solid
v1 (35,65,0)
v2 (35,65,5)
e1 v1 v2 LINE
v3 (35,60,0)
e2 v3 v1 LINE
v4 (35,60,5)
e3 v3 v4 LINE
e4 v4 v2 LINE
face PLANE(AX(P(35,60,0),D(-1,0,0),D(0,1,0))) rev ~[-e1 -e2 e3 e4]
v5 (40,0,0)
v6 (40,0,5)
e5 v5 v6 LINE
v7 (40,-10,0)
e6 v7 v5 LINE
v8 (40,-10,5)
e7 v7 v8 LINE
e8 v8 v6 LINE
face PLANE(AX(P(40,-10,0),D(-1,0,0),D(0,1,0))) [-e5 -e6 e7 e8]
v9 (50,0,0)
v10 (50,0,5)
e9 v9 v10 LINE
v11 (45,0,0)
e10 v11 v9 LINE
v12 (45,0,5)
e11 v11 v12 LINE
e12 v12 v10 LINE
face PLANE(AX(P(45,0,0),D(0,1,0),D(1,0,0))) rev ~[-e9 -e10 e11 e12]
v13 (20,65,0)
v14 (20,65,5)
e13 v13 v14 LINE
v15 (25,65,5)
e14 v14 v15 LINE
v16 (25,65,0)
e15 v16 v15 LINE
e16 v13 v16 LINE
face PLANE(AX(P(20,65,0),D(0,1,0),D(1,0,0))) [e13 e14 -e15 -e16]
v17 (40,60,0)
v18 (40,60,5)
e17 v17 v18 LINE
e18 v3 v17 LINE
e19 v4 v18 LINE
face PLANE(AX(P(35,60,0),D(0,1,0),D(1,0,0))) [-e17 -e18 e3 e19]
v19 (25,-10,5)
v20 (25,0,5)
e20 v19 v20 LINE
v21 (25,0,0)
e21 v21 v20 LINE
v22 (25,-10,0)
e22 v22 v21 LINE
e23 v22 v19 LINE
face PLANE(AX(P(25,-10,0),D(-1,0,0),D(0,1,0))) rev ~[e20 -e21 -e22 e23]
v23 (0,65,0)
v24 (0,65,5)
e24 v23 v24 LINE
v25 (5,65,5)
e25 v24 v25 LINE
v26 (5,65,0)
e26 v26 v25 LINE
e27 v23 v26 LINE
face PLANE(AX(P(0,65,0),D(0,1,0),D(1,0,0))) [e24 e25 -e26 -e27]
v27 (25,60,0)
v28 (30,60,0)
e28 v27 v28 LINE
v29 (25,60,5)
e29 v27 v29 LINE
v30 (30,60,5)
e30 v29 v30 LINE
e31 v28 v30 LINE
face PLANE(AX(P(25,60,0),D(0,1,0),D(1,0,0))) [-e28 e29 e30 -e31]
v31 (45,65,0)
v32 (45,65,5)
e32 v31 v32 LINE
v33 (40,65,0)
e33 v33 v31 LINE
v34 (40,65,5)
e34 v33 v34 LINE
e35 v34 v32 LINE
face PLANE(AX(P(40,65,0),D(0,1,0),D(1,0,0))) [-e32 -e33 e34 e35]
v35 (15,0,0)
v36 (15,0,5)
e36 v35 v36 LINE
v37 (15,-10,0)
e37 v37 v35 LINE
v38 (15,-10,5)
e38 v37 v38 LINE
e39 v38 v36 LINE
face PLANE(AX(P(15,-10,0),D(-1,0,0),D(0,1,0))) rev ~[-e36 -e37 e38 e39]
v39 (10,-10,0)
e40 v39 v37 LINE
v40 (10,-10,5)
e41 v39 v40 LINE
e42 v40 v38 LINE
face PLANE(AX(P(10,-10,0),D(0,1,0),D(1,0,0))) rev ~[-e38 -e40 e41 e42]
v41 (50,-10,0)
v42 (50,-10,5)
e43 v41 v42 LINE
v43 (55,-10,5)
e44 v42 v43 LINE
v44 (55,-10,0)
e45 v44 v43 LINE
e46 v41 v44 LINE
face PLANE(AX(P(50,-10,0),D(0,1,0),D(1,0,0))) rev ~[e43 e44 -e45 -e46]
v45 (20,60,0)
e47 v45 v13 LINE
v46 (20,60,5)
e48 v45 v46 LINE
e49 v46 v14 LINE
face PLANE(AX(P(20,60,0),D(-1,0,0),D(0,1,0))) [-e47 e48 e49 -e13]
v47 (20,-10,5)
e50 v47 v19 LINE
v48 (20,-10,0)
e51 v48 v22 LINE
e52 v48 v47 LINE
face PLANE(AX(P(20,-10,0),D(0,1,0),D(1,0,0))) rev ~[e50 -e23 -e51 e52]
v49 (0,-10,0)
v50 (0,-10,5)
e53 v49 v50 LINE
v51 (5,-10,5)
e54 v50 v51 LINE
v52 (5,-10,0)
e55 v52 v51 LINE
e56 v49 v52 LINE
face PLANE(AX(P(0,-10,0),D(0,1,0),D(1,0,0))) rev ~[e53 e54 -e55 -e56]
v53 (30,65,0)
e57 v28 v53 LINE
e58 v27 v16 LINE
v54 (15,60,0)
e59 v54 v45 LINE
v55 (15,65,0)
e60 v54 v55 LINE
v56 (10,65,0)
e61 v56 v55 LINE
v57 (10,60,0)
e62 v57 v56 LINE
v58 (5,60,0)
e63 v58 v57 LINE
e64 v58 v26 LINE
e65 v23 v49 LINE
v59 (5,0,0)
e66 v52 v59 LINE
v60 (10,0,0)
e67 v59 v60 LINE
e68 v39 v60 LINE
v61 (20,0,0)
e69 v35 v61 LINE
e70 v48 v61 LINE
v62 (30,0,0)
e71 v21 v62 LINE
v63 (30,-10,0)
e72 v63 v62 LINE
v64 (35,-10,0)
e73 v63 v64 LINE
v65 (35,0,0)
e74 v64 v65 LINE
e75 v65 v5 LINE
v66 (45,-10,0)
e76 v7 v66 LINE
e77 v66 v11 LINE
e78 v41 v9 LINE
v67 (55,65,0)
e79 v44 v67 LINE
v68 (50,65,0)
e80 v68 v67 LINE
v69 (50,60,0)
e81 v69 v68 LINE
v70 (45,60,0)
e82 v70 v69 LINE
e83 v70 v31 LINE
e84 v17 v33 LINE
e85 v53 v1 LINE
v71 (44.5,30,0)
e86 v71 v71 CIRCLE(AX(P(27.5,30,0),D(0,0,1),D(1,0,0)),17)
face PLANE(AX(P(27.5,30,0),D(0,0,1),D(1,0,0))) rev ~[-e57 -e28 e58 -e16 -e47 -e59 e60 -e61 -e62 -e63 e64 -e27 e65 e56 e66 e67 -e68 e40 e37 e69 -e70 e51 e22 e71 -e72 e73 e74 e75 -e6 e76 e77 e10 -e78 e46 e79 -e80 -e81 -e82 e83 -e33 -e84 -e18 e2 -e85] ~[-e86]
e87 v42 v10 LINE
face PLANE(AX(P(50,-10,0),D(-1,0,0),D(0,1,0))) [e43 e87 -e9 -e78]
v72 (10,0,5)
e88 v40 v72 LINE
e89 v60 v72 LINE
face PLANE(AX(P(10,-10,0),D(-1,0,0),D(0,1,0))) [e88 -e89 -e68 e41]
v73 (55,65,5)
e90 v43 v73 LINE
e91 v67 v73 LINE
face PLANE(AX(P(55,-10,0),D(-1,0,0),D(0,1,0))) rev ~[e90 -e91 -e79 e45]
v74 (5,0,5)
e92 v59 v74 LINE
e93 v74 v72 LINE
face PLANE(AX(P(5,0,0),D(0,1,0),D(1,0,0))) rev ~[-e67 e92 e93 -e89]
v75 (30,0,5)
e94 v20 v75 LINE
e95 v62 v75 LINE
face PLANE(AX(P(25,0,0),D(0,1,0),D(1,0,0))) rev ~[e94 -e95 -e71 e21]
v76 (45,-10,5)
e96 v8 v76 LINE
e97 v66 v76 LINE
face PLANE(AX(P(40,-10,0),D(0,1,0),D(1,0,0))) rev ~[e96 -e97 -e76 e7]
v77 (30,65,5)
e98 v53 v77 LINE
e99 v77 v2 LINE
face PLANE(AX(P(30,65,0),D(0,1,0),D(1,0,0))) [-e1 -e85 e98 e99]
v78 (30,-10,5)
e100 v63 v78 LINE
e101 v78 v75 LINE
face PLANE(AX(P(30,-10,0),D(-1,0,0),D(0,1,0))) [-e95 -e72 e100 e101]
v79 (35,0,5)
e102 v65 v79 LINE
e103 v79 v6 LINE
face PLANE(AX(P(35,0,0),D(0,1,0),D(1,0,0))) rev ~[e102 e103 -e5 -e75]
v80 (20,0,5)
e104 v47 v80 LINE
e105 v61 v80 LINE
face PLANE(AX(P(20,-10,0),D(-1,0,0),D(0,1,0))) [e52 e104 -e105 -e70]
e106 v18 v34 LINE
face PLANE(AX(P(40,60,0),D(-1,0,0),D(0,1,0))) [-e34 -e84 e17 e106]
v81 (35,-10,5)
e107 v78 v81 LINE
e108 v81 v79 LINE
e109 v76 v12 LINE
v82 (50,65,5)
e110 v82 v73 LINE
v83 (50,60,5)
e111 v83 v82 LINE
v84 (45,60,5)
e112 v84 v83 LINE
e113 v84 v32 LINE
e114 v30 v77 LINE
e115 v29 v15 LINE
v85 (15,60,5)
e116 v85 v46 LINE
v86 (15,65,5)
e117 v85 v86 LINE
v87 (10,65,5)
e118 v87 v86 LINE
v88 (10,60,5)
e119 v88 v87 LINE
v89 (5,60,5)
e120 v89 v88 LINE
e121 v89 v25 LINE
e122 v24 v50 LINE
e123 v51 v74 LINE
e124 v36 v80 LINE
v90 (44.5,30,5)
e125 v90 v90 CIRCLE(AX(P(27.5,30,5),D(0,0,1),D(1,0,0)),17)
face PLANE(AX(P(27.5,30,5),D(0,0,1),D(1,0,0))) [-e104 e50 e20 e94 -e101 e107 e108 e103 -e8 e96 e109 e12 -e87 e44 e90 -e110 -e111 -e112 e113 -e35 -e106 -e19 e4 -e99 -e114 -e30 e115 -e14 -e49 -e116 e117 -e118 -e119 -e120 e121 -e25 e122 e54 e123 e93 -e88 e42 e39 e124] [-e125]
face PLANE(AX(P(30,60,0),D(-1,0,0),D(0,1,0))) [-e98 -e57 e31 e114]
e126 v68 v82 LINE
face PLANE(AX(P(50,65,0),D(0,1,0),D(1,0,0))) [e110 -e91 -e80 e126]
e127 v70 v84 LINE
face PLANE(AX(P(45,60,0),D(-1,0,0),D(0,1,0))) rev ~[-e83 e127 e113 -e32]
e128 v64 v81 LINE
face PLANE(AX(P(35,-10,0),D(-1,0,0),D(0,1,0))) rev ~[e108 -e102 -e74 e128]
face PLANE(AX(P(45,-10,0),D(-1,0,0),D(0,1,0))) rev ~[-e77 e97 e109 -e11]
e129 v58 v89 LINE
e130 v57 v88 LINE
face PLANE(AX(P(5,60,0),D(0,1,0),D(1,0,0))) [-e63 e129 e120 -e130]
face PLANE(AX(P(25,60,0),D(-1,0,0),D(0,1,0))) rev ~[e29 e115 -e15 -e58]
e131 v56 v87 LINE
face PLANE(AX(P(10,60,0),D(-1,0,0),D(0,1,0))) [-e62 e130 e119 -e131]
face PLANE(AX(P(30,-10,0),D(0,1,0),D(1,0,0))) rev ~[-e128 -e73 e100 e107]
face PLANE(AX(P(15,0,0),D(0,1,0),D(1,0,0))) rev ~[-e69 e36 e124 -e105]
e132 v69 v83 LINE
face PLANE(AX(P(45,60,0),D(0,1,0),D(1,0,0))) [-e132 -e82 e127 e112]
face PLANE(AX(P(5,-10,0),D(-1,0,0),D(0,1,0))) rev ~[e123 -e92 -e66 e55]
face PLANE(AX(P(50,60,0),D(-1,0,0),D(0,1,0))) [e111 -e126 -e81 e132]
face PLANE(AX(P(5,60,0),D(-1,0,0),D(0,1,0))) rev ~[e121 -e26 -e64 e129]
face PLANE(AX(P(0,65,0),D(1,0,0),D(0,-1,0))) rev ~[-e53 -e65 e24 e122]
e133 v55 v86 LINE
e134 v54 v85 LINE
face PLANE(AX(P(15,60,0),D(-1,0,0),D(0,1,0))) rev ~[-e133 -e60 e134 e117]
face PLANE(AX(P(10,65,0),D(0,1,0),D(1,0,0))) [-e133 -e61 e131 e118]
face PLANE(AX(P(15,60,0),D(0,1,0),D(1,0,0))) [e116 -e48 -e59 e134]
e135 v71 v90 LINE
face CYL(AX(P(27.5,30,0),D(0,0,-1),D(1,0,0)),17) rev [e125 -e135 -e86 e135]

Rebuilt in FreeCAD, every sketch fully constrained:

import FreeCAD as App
import Part
import Sketcher
from FreeCAD import Vector

doc = App.newDocument("Part")
body = doc.addObject("PartDesign::Body", "Body")

sketch1 = doc.addObject("Sketcher::SketchObject", "Sketch")
body.addObject(sketch1)
sketch1.AttachmentSupport = (doc.XY_Plane, [""])
sketch1.MapMode = "FlatFace"
sketch1.addGeometry(Part.LineSegment(Vector(5, 0, 0), Vector(10, 0, 0)), False)
sketch1.addGeometry(Part.LineSegment(Vector(10, 0, 0), Vector(10, -10, 0)), False)
sketch1.addGeometry(Part.LineSegment(Vector(10, -10, 0), Vector(15, -10, 0)), False)
sketch1.addGeometry(Part.LineSegment(Vector(15, -10, 0), Vector(15, 0, 0)), False)
sketch1.addGeometry(Part.LineSegment(Vector(15, 0, 0), Vector(20, 0, 0)), False)
sketch1.addGeometry(Part.LineSegment(Vector(20, 0, 0), Vector(20, -10, 0)), False)
sketch1.addGeometry(Part.LineSegment(Vector(20, -10, 0), Vector(25, -10, 0)), False)
sketch1.addGeometry(Part.LineSegment(Vector(25, -10, 0), Vector(25, 0, 0)), False)
sketch1.addGeometry(Part.LineSegment(Vector(25, 0, 0), Vector(30, 0, 0)), False)
sketch1.addGeometry(Part.LineSegment(Vector(30, 0, 0), Vector(30, -10, 0)), False)
sketch1.addGeometry(Part.LineSegment(Vector(30, -10, 0), Vector(35, -10, 0)), False)
sketch1.addGeometry(Part.LineSegment(Vector(35, -10, 0), Vector(35, 0, 0)), False)
sketch1.addGeometry(Part.LineSegment(Vector(35, 0, 0), Vector(40, 0, 0)), False)
sketch1.addGeometry(Part.LineSegment(Vector(40, 0, 0), Vector(40, -10, 0)), False)
sketch1.addGeometry(Part.LineSegment(Vector(40, -10, 0), Vector(45, -10, 0)), False)
sketch1.addGeometry(Part.LineSegment(Vector(45, -10, 0), Vector(45, 0, 0)), False)
sketch1.addGeometry(Part.LineSegment(Vector(45, 0, 0), Vector(50, 0, 0)), False)
sketch1.addGeometry(Part.LineSegment(Vector(50, 0, 0), Vector(50, -10, 0)), False)
sketch1.addGeometry(Part.LineSegment(Vector(50, -10, 0), Vector(55, -10, 0)), False)
sketch1.addGeometry(Part.LineSegment(Vector(55, -10, 0), Vector(55, 65, 0)), False)
sketch1.addGeometry(Part.LineSegment(Vector(55, 65, 0), Vector(50, 65, 0)), False)
sketch1.addGeometry(Part.LineSegment(Vector(50, 65, 0), Vector(50, 60, 0)), False)
sketch1.addGeometry(Part.LineSegment(Vector(50, 60, 0), Vector(45, 60, 0)), False)
sketch1.addGeometry(Part.LineSegment(Vector(45, 60, 0), Vector(45, 65, 0)), False)
sketch1.addGeometry(Part.LineSegment(Vector(45, 65, 0), Vector(40, 65, 0)), False)
sketch1.addGeometry(Part.LineSegment(Vector(40, 65, 0), Vector(40, 60, 0)), False)
sketch1.addGeometry(Part.LineSegment(Vector(40, 60, 0), Vector(35, 60, 0)), False)
sketch1.addGeometry(Part.LineSegment(Vector(35, 60, 0), Vector(35, 65, 0)), False)
sketch1.addGeometry(Part.LineSegment(Vector(35, 65, 0), Vector(30, 65, 0)), False)
sketch1.addGeometry(Part.LineSegment(Vector(30, 65, 0), Vector(30, 60, 0)), False)
sketch1.addGeometry(Part.LineSegment(Vector(30, 60, 0), Vector(25, 60, 0)), False)
sketch1.addGeometry(Part.LineSegment(Vector(25, 60, 0), Vector(25, 65, 0)), False)
sketch1.addGeometry(Part.LineSegment(Vector(25, 65, 0), Vector(20, 65, 0)), False)
sketch1.addGeometry(Part.LineSegment(Vector(20, 65, 0), Vector(20, 60, 0)), False)
sketch1.addGeometry(Part.LineSegment(Vector(20, 60, 0), Vector(15, 60, 0)), False)
sketch1.addGeometry(Part.LineSegment(Vector(15, 60, 0), Vector(15, 65, 0)), False)
sketch1.addGeometry(Part.LineSegment(Vector(15, 65, 0), Vector(10, 65, 0)), False)
sketch1.addGeometry(Part.LineSegment(Vector(10, 65, 0), Vector(10, 60, 0)), False)
sketch1.addGeometry(Part.LineSegment(Vector(10, 60, 0), Vector(5, 60, 0)), False)
sketch1.addGeometry(Part.LineSegment(Vector(5, 60, 0), Vector(5, 65, 0)), False)
sketch1.addGeometry(Part.LineSegment(Vector(5, 65, 0), Vector(0, 65, 0)), False)
sketch1.addGeometry(Part.LineSegment(Vector(0, 65, 0), Vector(0, -10, 0)), False)
sketch1.addGeometry(Part.LineSegment(Vector(0, -10, 0), Vector(5, -10, 0)), False)
sketch1.addGeometry(Part.LineSegment(Vector(5, -10, 0), Vector(5, 0, 0)), False)
sketch1.addGeometry(Part.Circle(Vector(27.5, 30, 0), Vector(0, 0, 1), 17), False)
sketch1.addConstraint(Sketcher.Constraint("Coincident", 0, 2, 1, 1))
sketch1.addConstraint(Sketcher.Constraint("Coincident", 1, 2, 2, 1))
sketch1.addConstraint(Sketcher.Constraint("Coincident", 2, 2, 3, 1))
sketch1.addConstraint(Sketcher.Constraint("Coincident", 3, 2, 4, 1))
sketch1.addConstraint(Sketcher.Constraint("Coincident", 4, 2, 5, 1))
sketch1.addConstraint(Sketcher.Constraint("Coincident", 5, 2, 6, 1))
sketch1.addConstraint(Sketcher.Constraint("Coincident", 6, 2, 7, 1))
sketch1.addConstraint(Sketcher.Constraint("Coincident", 7, 2, 8, 1))
sketch1.addConstraint(Sketcher.Constraint("Coincident", 8, 2, 9, 1))
sketch1.addConstraint(Sketcher.Constraint("Coincident", 9, 2, 10, 1))
sketch1.addConstraint(Sketcher.Constraint("Coincident", 10, 2, 11, 1))
sketch1.addConstraint(Sketcher.Constraint("Coincident", 11, 2, 12, 1))
sketch1.addConstraint(Sketcher.Constraint("Coincident", 12, 2, 13, 1))
sketch1.addConstraint(Sketcher.Constraint("Coincident", 13, 2, 14, 1))
sketch1.addConstraint(Sketcher.Constraint("Coincident", 14, 2, 15, 1))
sketch1.addConstraint(Sketcher.Constraint("Coincident", 15, 2, 16, 1))
sketch1.addConstraint(Sketcher.Constraint("Coincident", 16, 2, 17, 1))
sketch1.addConstraint(Sketcher.Constraint("Coincident", 17, 2, 18, 1))
sketch1.addConstraint(Sketcher.Constraint("Coincident", 18, 2, 19, 1))
sketch1.addConstraint(Sketcher.Constraint("Coincident", 19, 2, 20, 1))
sketch1.addConstraint(Sketcher.Constraint("Coincident", 20, 2, 21, 1))
sketch1.addConstraint(Sketcher.Constraint("Coincident", 21, 2, 22, 1))
sketch1.addConstraint(Sketcher.Constraint("Coincident", 22, 2, 23, 1))
sketch1.addConstraint(Sketcher.Constraint("Coincident", 23, 2, 24, 1))
sketch1.addConstraint(Sketcher.Constraint("Coincident", 24, 2, 25, 1))
sketch1.addConstraint(Sketcher.Constraint("Coincident", 25, 2, 26, 1))
sketch1.addConstraint(Sketcher.Constraint("Coincident", 26, 2, 27, 1))
sketch1.addConstraint(Sketcher.Constraint("Coincident", 27, 2, 28, 1))
sketch1.addConstraint(Sketcher.Constraint("Coincident", 28, 2, 29, 1))
sketch1.addConstraint(Sketcher.Constraint("Coincident", 29, 2, 30, 1))
sketch1.addConstraint(Sketcher.Constraint("Coincident", 30, 2, 31, 1))
sketch1.addConstraint(Sketcher.Constraint("Coincident", 31, 2, 32, 1))
sketch1.addConstraint(Sketcher.Constraint("Coincident", 32, 2, 33, 1))
sketch1.addConstraint(Sketcher.Constraint("Coincident", 33, 2, 34, 1))
sketch1.addConstraint(Sketcher.Constraint("Coincident", 34, 2, 35, 1))
sketch1.addConstraint(Sketcher.Constraint("Coincident", 35, 2, 36, 1))
sketch1.addConstraint(Sketcher.Constraint("Coincident", 36, 2, 37, 1))
sketch1.addConstraint(Sketcher.Constraint("Coincident", 37, 2, 38, 1))
sketch1.addConstraint(Sketcher.Constraint("Coincident", 38, 2, 39, 1))
sketch1.addConstraint(Sketcher.Constraint("Coincident", 39, 2, 40, 1))
sketch1.addConstraint(Sketcher.Constraint("Coincident", 40, 2, 41, 1))
sketch1.addConstraint(Sketcher.Constraint("Coincident", 41, 2, 42, 1))
sketch1.addConstraint(Sketcher.Constraint("Coincident", 42, 2, 43, 1))
sketch1.addConstraint(Sketcher.Constraint("Coincident", 43, 2, 0, 1))
sketch1.addConstraint(Sketcher.Constraint("Horizontal", 0))
sketch1.addConstraint(Sketcher.Constraint("Vertical", 1))
sketch1.addConstraint(Sketcher.Constraint("Horizontal", 2))
sketch1.addConstraint(Sketcher.Constraint("Vertical", 3))
sketch1.addConstraint(Sketcher.Constraint("Horizontal", 4))
sketch1.addConstraint(Sketcher.Constraint("Vertical", 5))
sketch1.addConstraint(Sketcher.Constraint("Horizontal", 6))
sketch1.addConstraint(Sketcher.Constraint("Vertical", 7))
sketch1.addConstraint(Sketcher.Constraint("Horizontal", 8))
sketch1.addConstraint(Sketcher.Constraint("Vertical", 9))
sketch1.addConstraint(Sketcher.Constraint("Horizontal", 10))
sketch1.addConstraint(Sketcher.Constraint("Vertical", 11))
sketch1.addConstraint(Sketcher.Constraint("Horizontal", 12))
sketch1.addConstraint(Sketcher.Constraint("Vertical", 13))
sketch1.addConstraint(Sketcher.Constraint("Horizontal", 14))
sketch1.addConstraint(Sketcher.Constraint("Vertical", 15))
sketch1.addConstraint(Sketcher.Constraint("Horizontal", 16))
sketch1.addConstraint(Sketcher.Constraint("Vertical", 17))
sketch1.addConstraint(Sketcher.Constraint("Horizontal", 18))
sketch1.addConstraint(Sketcher.Constraint("Vertical", 19))
sketch1.addConstraint(Sketcher.Constraint("Horizontal", 20))
sketch1.addConstraint(Sketcher.Constraint("Vertical", 21))
sketch1.addConstraint(Sketcher.Constraint("Horizontal", 22))
sketch1.addConstraint(Sketcher.Constraint("Vertical", 23))
sketch1.addConstraint(Sketcher.Constraint("Horizontal", 24))
sketch1.addConstraint(Sketcher.Constraint("Vertical", 25))
sketch1.addConstraint(Sketcher.Constraint("Horizontal", 26))
sketch1.addConstraint(Sketcher.Constraint("Vertical", 27))
sketch1.addConstraint(Sketcher.Constraint("Horizontal", 28))
sketch1.addConstraint(Sketcher.Constraint("Vertical", 29))
sketch1.addConstraint(Sketcher.Constraint("Horizontal", 30))
sketch1.addConstraint(Sketcher.Constraint("Vertical", 31))
sketch1.addConstraint(Sketcher.Constraint("Horizontal", 32))
sketch1.addConstraint(Sketcher.Constraint("Vertical", 33))
sketch1.addConstraint(Sketcher.Constraint("Horizontal", 34))
sketch1.addConstraint(Sketcher.Constraint("Vertical", 35))
sketch1.addConstraint(Sketcher.Constraint("Horizontal", 36))
sketch1.addConstraint(Sketcher.Constraint("Vertical", 37))
sketch1.addConstraint(Sketcher.Constraint("Horizontal", 38))
sketch1.addConstraint(Sketcher.Constraint("Vertical", 39))
sketch1.addConstraint(Sketcher.Constraint("Horizontal", 40))
sketch1.addConstraint(Sketcher.Constraint("Vertical", 41))
sketch1.addConstraint(Sketcher.Constraint("Horizontal", 42))
sketch1.addConstraint(Sketcher.Constraint("Vertical", 43))
sketch1.addConstraint(Sketcher.Constraint("PointOnObject", 0, 2, -1))
sketch1.addConstraint(Sketcher.Constraint("PointOnObject", 3, 2, -1))
sketch1.addConstraint(Sketcher.Constraint("PointOnObject", 7, 2, -1))
sketch1.addConstraint(Sketcher.Constraint("PointOnObject", 11, 2, -1))
sketch1.addConstraint(Sketcher.Constraint("PointOnObject", 15, 2, -1))
sketch1.addConstraint(Sketcher.Constraint("PointOnObject", 40, 2, -2))
sketch1.addConstraint(Sketcher.Constraint("Horizontal", 2, 2, 5, 2))
sketch1.addConstraint(Sketcher.Constraint("Horizontal", 6, 2, 9, 2))
sketch1.addConstraint(Sketcher.Constraint("Horizontal", 10, 2, 13, 2))
sketch1.addConstraint(Sketcher.Constraint("Horizontal", 14, 2, 17, 2))
sketch1.addConstraint(Sketcher.Constraint("Horizontal", 20, 2, 23, 2))
sketch1.addConstraint(Sketcher.Constraint("Horizontal", 22, 2, 25, 2))
sketch1.addConstraint(Sketcher.Constraint("Horizontal", 24, 2, 27, 2))
sketch1.addConstraint(Sketcher.Constraint("Horizontal", 26, 2, 29, 2))
sketch1.addConstraint(Sketcher.Constraint("Horizontal", 28, 2, 31, 2))
sketch1.addConstraint(Sketcher.Constraint("Horizontal", 30, 2, 33, 2))
sketch1.addConstraint(Sketcher.Constraint("Horizontal", 32, 2, 35, 2))
sketch1.addConstraint(Sketcher.Constraint("Horizontal", 34, 2, 37, 2))
sketch1.addConstraint(Sketcher.Constraint("Horizontal", 36, 2, 39, 2))
sketch1.addConstraint(Sketcher.Constraint("Horizontal", 18, 2, 41, 2))
sketch1.addConstraint(Sketcher.Constraint("Vertical", 17, 2, 20, 2))
sketch1.addConstraint(Sketcher.Constraint("Vertical", 15, 2, 22, 2))
sketch1.addConstraint(Sketcher.Constraint("Vertical", 13, 2, 24, 2))
sketch1.addConstraint(Sketcher.Constraint("Vertical", 11, 2, 26, 2))
sketch1.addConstraint(Sketcher.Constraint("Vertical", 9, 2, 28, 2))
sketch1.addConstraint(Sketcher.Constraint("Vertical", 7, 2, 30, 2))
sketch1.addConstraint(Sketcher.Constraint("Vertical", 5, 2, 32, 2))
sketch1.addConstraint(Sketcher.Constraint("Vertical", 3, 2, 34, 2))
sketch1.addConstraint(Sketcher.Constraint("Vertical", 1, 2, 36, 2))
sketch1.addConstraint(Sketcher.Constraint("Vertical", 39, 2, 42, 2))
sketch1.addConstraint(Sketcher.Constraint("Equal", 0, 2))
sketch1.addConstraint(Sketcher.Constraint("Equal", 2, 4))
sketch1.addConstraint(Sketcher.Constraint("Equal", 4, 6))
sketch1.addConstraint(Sketcher.Constraint("Equal", 6, 8))
sketch1.addConstraint(Sketcher.Constraint("Equal", 8, 10))
sketch1.addConstraint(Sketcher.Constraint("Equal", 10, 12))
sketch1.addConstraint(Sketcher.Constraint("Equal", 12, 14))
sketch1.addConstraint(Sketcher.Constraint("Equal", 14, 16))
sketch1.addConstraint(Sketcher.Constraint("Equal", 16, 18))
sketch1.addConstraint(Sketcher.Constraint("Equal", 38, 40))
sketch1.addConstraint(Sketcher.Constraint("Equal", 42, 21))
sketch1.addConstraint(Sketcher.Constraint("Diameter", 44, 34.0))
sketch1.addConstraint(Sketcher.Constraint("DistanceX", 0, 1, 0, 2, 5.0))
sketch1.addConstraint(Sketcher.Constraint("DistanceY", 1, 2, 1, 1, 10.0))
sketch1.addConstraint(Sketcher.Constraint("DistanceY", 19, 1, 19, 2, 75.0))
sketch1.addConstraint(Sketcher.Constraint("DistanceY", -1, 1, 44, 3, 30.0))
sketch1.addConstraint(Sketcher.Constraint("DistanceX", -1, 1, 44, 3, 27.5))
pad1 = doc.addObject("PartDesign::Pad", "Pad")
body.addObject(pad1)
pad1.Profile = sketch1
pad1.Length = 5

doc.recompute()
